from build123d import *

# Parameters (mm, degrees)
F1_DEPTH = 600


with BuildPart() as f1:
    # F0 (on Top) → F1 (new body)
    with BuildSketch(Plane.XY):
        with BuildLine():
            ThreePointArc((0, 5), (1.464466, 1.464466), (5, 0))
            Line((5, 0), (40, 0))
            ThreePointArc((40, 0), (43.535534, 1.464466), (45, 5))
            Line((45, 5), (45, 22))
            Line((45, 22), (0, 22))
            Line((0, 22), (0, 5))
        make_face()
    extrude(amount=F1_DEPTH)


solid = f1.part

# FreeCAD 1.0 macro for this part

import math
import FreeCAD as App
import Part
import Sketcher
Q = App.Units.Quantity

doc = App.newDocument("Part")
body = doc.addObject("PartDesign::Body", "Body")

# Sketch on XY plane
sketch1 = body.newObject("Sketcher::SketchObject", "Sketch")
sketch1.AttachmentSupport = (doc.getObject("XY_Plane"), [""])
sketch1.MapMode = "FlatFace"
sketch1.addGeometry([
    Part.ArcOfCircle(Part.Circle(App.Vector(5, 5, 0), App.Vector(0, 0, 1), 5), math.radians(180), math.radians(270)),  # 0
    Part.LineSegment(App.Vector(5, 0, 0), App.Vector(40, 0, 0)),  # 1
    Part.ArcOfCircle(Part.Circle(App.Vector(40, 5, 0), App.Vector(0, 0, 1), 5), math.radians(-90), math.radians(0)),  # 2
    Part.LineSegment(App.Vector(45, 5, 0), App.Vector(45, 22, 0)),  # 3
    Part.LineSegment(App.Vector(45, 22, 0), App.Vector(0, 22, 0)),  # 4
    Part.LineSegment(App.Vector(0, 22, 0), App.Vector(0, 5, 0)),  # 5
], False)
sketch1.addConstraint([
    Sketcher.Constraint("Tangent", 0, 2, 1, 1),
    Sketcher.Constraint("Tangent", 1, 2, 2, 1),
    Sketcher.Constraint("Tangent", 2, 2, 3, 1),
    Sketcher.Constraint("Coincident", 3, 2, 4, 1),
    Sketcher.Constraint("Coincident", 4, 2, 5, 1),
    Sketcher.Constraint("Tangent", 5, 2, 0, 1),
    Sketcher.Constraint("Horizontal", 1),
    Sketcher.Constraint("Vertical", 3),
    Sketcher.Constraint("Horizontal", 4),
    Sketcher.Constraint("Vertical", 5),
    Sketcher.Constraint("Equal", 0, 2),
    Sketcher.Constraint("PointOnObject", 0, 2, -1),
    Sketcher.Constraint("PointOnObject", 4, 2, -2),
    Sketcher.Constraint("Radius", 0, Q("5 mm")),
    Sketcher.Constraint("DistanceX", 1, 1, 1, 2, Q("35 mm")),
    Sketcher.Constraint("DistanceY", 3, 1, 3, 2, Q("17 mm")),
])
pad1 = body.newObject("PartDesign::Pad", "Pad")
pad1.Profile = sketch1
pad1.Length = 600

doc.recompute()
